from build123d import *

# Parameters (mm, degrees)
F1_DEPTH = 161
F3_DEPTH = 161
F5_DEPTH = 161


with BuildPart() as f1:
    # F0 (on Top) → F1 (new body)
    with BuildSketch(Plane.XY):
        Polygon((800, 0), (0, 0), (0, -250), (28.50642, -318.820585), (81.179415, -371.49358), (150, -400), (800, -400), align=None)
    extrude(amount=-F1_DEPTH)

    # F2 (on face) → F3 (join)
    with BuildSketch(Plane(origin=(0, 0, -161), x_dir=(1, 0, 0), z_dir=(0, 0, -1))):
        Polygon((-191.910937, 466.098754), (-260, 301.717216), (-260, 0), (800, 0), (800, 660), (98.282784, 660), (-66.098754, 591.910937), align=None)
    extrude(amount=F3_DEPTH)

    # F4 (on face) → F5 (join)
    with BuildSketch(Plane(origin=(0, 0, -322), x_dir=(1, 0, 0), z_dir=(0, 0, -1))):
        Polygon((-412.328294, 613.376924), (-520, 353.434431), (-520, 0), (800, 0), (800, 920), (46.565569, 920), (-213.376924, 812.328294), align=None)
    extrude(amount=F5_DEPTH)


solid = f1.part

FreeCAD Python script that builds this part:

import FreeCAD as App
import Part
import Sketcher
from FreeCAD import Vector
Q = App.Units.Quantity


def add_polygon(sketch, points):
    """Adds a closed chain of lines whose ends are joined by coincident constraints."""
    first, n = sketch.GeometryCount, len(points)
    for a, b in zip(points, points[1:] + points[:1]):
        sketch.addGeometry(Part.LineSegment(App.Vector(*a, 0), App.Vector(*b, 0)), False)
    for i in range(n):
        sketch.addConstraint(Sketcher.Constraint("Coincident", first + i, 2, first + (i + 1) % n, 1))

doc = App.newDocument("Part")
body = doc.addObject("PartDesign::Body", "Body")

sketch1 = doc.addObject("Sketcher::SketchObject", "Sketch")
body.addObject(sketch1)
sketch1.AttachmentSupport = (doc.XY_Plane, [""])
sketch1.MapMode = "FlatFace"
add_polygon(sketch1, [(800, 0), (0, 0), (0, -250), (29, -319), (81, -371), (150, -400), (800, -400)])
sketch1.addConstraint([
    Sketcher.Constraint("Horizontal", 0),
    Sketcher.Constraint("Vertical", 1),
    Sketcher.Constraint("Horizontal", 5),
    Sketcher.Constraint("Vertical", 6),
    Sketcher.Constraint("Coincident", 0, 2, -1, 1),
    Sketcher.Constraint("Equal", 2, 3),
    Sketcher.Constraint("Equal", 3, 4),
    Sketcher.Constraint("DistanceX", 0, 2, 0, 1, 800.0),
    Sketcher.Constraint("DistanceX", 5, 1, 5, 2, 650.0),
    Sketcher.Constraint("DistanceY", 1, 2, 1, 1, 250.0),
    Sketcher.Constraint("DistanceY", 6, 1, 6, 2, 400.0),
    Sketcher.Constraint("Angle", 3, Q("-45 deg")),
    Sketcher.Constraint("Angle", 2, Q("-67.5 deg")),
])
pad1 = doc.addObject("PartDesign::Pad", "Pad")
body.addObject(pad1)
pad1.Profile = sketch1
pad1.Length = 161
pad1.Reversed = True

sketch2 = doc.addObject("Sketcher::SketchObject", "Sketch001")
body.addObject(sketch2)
sketch2.AttachmentSupport = (doc.XY_Plane, [""])
sketch2.MapMode = "FlatFace"
sketch2.AttachmentOffset = App.Placement(Vector(0, 0, -161), App.Rotation())
add_polygon(sketch2, [(-192, -466), (-260, -302), (-260, 0), (800, 0), (800, -660), (98, -660), (-66, -592)])
sketch2.addConstraint([
    Sketcher.Constraint("Vertical", 1),
    Sketcher.Constraint("Horizontal", 2),
    Sketcher.Constraint("Vertical", 3),
    Sketcher.Constraint("Horizontal", 4),
    Sketcher.Constraint("PointOnObject", 1, 2, -1),
    Sketcher.Constraint("Equal", 0, 5),
    Sketcher.Constraint("Equal", 5, 6),
    Sketcher.Constraint("DistanceX", 2, 1, 2, 2, 1060.0),
    Sketcher.Constraint("DistanceY", 3, 2, 3, 1, 660.0),
    Sketcher.Constraint("Angle", 6, Q("135 deg")),
    Sketcher.Constraint("DistanceX", 0, 2, -1, 1, 260.0),
    Sketcher.Constraint("Angle", 0, Q("112.5 deg")),
    Sketcher.Constraint("Angle", 5, Q("157.5 deg")),
    Sketcher.Constraint("DistanceX", 4, 2, 4, 1, 701.717216),
])
pad2 = doc.addObject("PartDesign::Pad", "Pad001")
body.addObject(pad2)
pad2.Profile = sketch2
pad2.Length = 161
pad2.Reversed = True

sketch3 = doc.addObject("Sketcher::SketchObject", "Sketch002")
body.addObject(sketch3)
sketch3.AttachmentSupport = (doc.XY_Plane, [""])
sketch3.MapMode = "FlatFace"
sketch3.AttachmentOffset = App.Placement(Vector(0, 0, -322), App.Rotation())
add_polygon(sketch3, [(-412, -613), (-520, -353), (-520, 0), (800, 0), (800, -920), (47, -920), (-213, -812)])
sketch3.addConstraint([
    Sketcher.Constraint("Vertical", 1),
    Sketcher.Constraint("Horizontal", 2),
    Sketcher.Constraint("Vertical", 3),
    Sketcher.Constraint("Horizontal", 4),
    Sketcher.Constraint("PointOnObject", 1, 2, -1),
    Sketcher.Constraint("Equal", 0, 5),
    Sketcher.Constraint("Equal", 5, 6),
    Sketcher.Constraint("DistanceX", 2, 1, 2, 2, 1320.0),
    Sketcher.Constraint("DistanceY", 3, 2, 3, 1, 920.0),
    Sketcher.Constraint("Angle", 6, Q("135 deg")),
    Sketcher.Constraint("DistanceX", 0, 2, -1, 1, 520.0),
    Sketcher.Constraint("Angle", 0, Q("112.5 deg")),
    Sketcher.Constraint("Angle", 5, Q("157.5 deg")),
    Sketcher.Constraint("DistanceX", 4, 2, 4, 1, 753.434431),
])
pad3 = doc.addObject("PartDesign::Pad", "Pad002")
body.addObject(pad3)
pad3.Profile = sketch3
pad3.Length = 161
pad3.Reversed = True

doc.recompute()
